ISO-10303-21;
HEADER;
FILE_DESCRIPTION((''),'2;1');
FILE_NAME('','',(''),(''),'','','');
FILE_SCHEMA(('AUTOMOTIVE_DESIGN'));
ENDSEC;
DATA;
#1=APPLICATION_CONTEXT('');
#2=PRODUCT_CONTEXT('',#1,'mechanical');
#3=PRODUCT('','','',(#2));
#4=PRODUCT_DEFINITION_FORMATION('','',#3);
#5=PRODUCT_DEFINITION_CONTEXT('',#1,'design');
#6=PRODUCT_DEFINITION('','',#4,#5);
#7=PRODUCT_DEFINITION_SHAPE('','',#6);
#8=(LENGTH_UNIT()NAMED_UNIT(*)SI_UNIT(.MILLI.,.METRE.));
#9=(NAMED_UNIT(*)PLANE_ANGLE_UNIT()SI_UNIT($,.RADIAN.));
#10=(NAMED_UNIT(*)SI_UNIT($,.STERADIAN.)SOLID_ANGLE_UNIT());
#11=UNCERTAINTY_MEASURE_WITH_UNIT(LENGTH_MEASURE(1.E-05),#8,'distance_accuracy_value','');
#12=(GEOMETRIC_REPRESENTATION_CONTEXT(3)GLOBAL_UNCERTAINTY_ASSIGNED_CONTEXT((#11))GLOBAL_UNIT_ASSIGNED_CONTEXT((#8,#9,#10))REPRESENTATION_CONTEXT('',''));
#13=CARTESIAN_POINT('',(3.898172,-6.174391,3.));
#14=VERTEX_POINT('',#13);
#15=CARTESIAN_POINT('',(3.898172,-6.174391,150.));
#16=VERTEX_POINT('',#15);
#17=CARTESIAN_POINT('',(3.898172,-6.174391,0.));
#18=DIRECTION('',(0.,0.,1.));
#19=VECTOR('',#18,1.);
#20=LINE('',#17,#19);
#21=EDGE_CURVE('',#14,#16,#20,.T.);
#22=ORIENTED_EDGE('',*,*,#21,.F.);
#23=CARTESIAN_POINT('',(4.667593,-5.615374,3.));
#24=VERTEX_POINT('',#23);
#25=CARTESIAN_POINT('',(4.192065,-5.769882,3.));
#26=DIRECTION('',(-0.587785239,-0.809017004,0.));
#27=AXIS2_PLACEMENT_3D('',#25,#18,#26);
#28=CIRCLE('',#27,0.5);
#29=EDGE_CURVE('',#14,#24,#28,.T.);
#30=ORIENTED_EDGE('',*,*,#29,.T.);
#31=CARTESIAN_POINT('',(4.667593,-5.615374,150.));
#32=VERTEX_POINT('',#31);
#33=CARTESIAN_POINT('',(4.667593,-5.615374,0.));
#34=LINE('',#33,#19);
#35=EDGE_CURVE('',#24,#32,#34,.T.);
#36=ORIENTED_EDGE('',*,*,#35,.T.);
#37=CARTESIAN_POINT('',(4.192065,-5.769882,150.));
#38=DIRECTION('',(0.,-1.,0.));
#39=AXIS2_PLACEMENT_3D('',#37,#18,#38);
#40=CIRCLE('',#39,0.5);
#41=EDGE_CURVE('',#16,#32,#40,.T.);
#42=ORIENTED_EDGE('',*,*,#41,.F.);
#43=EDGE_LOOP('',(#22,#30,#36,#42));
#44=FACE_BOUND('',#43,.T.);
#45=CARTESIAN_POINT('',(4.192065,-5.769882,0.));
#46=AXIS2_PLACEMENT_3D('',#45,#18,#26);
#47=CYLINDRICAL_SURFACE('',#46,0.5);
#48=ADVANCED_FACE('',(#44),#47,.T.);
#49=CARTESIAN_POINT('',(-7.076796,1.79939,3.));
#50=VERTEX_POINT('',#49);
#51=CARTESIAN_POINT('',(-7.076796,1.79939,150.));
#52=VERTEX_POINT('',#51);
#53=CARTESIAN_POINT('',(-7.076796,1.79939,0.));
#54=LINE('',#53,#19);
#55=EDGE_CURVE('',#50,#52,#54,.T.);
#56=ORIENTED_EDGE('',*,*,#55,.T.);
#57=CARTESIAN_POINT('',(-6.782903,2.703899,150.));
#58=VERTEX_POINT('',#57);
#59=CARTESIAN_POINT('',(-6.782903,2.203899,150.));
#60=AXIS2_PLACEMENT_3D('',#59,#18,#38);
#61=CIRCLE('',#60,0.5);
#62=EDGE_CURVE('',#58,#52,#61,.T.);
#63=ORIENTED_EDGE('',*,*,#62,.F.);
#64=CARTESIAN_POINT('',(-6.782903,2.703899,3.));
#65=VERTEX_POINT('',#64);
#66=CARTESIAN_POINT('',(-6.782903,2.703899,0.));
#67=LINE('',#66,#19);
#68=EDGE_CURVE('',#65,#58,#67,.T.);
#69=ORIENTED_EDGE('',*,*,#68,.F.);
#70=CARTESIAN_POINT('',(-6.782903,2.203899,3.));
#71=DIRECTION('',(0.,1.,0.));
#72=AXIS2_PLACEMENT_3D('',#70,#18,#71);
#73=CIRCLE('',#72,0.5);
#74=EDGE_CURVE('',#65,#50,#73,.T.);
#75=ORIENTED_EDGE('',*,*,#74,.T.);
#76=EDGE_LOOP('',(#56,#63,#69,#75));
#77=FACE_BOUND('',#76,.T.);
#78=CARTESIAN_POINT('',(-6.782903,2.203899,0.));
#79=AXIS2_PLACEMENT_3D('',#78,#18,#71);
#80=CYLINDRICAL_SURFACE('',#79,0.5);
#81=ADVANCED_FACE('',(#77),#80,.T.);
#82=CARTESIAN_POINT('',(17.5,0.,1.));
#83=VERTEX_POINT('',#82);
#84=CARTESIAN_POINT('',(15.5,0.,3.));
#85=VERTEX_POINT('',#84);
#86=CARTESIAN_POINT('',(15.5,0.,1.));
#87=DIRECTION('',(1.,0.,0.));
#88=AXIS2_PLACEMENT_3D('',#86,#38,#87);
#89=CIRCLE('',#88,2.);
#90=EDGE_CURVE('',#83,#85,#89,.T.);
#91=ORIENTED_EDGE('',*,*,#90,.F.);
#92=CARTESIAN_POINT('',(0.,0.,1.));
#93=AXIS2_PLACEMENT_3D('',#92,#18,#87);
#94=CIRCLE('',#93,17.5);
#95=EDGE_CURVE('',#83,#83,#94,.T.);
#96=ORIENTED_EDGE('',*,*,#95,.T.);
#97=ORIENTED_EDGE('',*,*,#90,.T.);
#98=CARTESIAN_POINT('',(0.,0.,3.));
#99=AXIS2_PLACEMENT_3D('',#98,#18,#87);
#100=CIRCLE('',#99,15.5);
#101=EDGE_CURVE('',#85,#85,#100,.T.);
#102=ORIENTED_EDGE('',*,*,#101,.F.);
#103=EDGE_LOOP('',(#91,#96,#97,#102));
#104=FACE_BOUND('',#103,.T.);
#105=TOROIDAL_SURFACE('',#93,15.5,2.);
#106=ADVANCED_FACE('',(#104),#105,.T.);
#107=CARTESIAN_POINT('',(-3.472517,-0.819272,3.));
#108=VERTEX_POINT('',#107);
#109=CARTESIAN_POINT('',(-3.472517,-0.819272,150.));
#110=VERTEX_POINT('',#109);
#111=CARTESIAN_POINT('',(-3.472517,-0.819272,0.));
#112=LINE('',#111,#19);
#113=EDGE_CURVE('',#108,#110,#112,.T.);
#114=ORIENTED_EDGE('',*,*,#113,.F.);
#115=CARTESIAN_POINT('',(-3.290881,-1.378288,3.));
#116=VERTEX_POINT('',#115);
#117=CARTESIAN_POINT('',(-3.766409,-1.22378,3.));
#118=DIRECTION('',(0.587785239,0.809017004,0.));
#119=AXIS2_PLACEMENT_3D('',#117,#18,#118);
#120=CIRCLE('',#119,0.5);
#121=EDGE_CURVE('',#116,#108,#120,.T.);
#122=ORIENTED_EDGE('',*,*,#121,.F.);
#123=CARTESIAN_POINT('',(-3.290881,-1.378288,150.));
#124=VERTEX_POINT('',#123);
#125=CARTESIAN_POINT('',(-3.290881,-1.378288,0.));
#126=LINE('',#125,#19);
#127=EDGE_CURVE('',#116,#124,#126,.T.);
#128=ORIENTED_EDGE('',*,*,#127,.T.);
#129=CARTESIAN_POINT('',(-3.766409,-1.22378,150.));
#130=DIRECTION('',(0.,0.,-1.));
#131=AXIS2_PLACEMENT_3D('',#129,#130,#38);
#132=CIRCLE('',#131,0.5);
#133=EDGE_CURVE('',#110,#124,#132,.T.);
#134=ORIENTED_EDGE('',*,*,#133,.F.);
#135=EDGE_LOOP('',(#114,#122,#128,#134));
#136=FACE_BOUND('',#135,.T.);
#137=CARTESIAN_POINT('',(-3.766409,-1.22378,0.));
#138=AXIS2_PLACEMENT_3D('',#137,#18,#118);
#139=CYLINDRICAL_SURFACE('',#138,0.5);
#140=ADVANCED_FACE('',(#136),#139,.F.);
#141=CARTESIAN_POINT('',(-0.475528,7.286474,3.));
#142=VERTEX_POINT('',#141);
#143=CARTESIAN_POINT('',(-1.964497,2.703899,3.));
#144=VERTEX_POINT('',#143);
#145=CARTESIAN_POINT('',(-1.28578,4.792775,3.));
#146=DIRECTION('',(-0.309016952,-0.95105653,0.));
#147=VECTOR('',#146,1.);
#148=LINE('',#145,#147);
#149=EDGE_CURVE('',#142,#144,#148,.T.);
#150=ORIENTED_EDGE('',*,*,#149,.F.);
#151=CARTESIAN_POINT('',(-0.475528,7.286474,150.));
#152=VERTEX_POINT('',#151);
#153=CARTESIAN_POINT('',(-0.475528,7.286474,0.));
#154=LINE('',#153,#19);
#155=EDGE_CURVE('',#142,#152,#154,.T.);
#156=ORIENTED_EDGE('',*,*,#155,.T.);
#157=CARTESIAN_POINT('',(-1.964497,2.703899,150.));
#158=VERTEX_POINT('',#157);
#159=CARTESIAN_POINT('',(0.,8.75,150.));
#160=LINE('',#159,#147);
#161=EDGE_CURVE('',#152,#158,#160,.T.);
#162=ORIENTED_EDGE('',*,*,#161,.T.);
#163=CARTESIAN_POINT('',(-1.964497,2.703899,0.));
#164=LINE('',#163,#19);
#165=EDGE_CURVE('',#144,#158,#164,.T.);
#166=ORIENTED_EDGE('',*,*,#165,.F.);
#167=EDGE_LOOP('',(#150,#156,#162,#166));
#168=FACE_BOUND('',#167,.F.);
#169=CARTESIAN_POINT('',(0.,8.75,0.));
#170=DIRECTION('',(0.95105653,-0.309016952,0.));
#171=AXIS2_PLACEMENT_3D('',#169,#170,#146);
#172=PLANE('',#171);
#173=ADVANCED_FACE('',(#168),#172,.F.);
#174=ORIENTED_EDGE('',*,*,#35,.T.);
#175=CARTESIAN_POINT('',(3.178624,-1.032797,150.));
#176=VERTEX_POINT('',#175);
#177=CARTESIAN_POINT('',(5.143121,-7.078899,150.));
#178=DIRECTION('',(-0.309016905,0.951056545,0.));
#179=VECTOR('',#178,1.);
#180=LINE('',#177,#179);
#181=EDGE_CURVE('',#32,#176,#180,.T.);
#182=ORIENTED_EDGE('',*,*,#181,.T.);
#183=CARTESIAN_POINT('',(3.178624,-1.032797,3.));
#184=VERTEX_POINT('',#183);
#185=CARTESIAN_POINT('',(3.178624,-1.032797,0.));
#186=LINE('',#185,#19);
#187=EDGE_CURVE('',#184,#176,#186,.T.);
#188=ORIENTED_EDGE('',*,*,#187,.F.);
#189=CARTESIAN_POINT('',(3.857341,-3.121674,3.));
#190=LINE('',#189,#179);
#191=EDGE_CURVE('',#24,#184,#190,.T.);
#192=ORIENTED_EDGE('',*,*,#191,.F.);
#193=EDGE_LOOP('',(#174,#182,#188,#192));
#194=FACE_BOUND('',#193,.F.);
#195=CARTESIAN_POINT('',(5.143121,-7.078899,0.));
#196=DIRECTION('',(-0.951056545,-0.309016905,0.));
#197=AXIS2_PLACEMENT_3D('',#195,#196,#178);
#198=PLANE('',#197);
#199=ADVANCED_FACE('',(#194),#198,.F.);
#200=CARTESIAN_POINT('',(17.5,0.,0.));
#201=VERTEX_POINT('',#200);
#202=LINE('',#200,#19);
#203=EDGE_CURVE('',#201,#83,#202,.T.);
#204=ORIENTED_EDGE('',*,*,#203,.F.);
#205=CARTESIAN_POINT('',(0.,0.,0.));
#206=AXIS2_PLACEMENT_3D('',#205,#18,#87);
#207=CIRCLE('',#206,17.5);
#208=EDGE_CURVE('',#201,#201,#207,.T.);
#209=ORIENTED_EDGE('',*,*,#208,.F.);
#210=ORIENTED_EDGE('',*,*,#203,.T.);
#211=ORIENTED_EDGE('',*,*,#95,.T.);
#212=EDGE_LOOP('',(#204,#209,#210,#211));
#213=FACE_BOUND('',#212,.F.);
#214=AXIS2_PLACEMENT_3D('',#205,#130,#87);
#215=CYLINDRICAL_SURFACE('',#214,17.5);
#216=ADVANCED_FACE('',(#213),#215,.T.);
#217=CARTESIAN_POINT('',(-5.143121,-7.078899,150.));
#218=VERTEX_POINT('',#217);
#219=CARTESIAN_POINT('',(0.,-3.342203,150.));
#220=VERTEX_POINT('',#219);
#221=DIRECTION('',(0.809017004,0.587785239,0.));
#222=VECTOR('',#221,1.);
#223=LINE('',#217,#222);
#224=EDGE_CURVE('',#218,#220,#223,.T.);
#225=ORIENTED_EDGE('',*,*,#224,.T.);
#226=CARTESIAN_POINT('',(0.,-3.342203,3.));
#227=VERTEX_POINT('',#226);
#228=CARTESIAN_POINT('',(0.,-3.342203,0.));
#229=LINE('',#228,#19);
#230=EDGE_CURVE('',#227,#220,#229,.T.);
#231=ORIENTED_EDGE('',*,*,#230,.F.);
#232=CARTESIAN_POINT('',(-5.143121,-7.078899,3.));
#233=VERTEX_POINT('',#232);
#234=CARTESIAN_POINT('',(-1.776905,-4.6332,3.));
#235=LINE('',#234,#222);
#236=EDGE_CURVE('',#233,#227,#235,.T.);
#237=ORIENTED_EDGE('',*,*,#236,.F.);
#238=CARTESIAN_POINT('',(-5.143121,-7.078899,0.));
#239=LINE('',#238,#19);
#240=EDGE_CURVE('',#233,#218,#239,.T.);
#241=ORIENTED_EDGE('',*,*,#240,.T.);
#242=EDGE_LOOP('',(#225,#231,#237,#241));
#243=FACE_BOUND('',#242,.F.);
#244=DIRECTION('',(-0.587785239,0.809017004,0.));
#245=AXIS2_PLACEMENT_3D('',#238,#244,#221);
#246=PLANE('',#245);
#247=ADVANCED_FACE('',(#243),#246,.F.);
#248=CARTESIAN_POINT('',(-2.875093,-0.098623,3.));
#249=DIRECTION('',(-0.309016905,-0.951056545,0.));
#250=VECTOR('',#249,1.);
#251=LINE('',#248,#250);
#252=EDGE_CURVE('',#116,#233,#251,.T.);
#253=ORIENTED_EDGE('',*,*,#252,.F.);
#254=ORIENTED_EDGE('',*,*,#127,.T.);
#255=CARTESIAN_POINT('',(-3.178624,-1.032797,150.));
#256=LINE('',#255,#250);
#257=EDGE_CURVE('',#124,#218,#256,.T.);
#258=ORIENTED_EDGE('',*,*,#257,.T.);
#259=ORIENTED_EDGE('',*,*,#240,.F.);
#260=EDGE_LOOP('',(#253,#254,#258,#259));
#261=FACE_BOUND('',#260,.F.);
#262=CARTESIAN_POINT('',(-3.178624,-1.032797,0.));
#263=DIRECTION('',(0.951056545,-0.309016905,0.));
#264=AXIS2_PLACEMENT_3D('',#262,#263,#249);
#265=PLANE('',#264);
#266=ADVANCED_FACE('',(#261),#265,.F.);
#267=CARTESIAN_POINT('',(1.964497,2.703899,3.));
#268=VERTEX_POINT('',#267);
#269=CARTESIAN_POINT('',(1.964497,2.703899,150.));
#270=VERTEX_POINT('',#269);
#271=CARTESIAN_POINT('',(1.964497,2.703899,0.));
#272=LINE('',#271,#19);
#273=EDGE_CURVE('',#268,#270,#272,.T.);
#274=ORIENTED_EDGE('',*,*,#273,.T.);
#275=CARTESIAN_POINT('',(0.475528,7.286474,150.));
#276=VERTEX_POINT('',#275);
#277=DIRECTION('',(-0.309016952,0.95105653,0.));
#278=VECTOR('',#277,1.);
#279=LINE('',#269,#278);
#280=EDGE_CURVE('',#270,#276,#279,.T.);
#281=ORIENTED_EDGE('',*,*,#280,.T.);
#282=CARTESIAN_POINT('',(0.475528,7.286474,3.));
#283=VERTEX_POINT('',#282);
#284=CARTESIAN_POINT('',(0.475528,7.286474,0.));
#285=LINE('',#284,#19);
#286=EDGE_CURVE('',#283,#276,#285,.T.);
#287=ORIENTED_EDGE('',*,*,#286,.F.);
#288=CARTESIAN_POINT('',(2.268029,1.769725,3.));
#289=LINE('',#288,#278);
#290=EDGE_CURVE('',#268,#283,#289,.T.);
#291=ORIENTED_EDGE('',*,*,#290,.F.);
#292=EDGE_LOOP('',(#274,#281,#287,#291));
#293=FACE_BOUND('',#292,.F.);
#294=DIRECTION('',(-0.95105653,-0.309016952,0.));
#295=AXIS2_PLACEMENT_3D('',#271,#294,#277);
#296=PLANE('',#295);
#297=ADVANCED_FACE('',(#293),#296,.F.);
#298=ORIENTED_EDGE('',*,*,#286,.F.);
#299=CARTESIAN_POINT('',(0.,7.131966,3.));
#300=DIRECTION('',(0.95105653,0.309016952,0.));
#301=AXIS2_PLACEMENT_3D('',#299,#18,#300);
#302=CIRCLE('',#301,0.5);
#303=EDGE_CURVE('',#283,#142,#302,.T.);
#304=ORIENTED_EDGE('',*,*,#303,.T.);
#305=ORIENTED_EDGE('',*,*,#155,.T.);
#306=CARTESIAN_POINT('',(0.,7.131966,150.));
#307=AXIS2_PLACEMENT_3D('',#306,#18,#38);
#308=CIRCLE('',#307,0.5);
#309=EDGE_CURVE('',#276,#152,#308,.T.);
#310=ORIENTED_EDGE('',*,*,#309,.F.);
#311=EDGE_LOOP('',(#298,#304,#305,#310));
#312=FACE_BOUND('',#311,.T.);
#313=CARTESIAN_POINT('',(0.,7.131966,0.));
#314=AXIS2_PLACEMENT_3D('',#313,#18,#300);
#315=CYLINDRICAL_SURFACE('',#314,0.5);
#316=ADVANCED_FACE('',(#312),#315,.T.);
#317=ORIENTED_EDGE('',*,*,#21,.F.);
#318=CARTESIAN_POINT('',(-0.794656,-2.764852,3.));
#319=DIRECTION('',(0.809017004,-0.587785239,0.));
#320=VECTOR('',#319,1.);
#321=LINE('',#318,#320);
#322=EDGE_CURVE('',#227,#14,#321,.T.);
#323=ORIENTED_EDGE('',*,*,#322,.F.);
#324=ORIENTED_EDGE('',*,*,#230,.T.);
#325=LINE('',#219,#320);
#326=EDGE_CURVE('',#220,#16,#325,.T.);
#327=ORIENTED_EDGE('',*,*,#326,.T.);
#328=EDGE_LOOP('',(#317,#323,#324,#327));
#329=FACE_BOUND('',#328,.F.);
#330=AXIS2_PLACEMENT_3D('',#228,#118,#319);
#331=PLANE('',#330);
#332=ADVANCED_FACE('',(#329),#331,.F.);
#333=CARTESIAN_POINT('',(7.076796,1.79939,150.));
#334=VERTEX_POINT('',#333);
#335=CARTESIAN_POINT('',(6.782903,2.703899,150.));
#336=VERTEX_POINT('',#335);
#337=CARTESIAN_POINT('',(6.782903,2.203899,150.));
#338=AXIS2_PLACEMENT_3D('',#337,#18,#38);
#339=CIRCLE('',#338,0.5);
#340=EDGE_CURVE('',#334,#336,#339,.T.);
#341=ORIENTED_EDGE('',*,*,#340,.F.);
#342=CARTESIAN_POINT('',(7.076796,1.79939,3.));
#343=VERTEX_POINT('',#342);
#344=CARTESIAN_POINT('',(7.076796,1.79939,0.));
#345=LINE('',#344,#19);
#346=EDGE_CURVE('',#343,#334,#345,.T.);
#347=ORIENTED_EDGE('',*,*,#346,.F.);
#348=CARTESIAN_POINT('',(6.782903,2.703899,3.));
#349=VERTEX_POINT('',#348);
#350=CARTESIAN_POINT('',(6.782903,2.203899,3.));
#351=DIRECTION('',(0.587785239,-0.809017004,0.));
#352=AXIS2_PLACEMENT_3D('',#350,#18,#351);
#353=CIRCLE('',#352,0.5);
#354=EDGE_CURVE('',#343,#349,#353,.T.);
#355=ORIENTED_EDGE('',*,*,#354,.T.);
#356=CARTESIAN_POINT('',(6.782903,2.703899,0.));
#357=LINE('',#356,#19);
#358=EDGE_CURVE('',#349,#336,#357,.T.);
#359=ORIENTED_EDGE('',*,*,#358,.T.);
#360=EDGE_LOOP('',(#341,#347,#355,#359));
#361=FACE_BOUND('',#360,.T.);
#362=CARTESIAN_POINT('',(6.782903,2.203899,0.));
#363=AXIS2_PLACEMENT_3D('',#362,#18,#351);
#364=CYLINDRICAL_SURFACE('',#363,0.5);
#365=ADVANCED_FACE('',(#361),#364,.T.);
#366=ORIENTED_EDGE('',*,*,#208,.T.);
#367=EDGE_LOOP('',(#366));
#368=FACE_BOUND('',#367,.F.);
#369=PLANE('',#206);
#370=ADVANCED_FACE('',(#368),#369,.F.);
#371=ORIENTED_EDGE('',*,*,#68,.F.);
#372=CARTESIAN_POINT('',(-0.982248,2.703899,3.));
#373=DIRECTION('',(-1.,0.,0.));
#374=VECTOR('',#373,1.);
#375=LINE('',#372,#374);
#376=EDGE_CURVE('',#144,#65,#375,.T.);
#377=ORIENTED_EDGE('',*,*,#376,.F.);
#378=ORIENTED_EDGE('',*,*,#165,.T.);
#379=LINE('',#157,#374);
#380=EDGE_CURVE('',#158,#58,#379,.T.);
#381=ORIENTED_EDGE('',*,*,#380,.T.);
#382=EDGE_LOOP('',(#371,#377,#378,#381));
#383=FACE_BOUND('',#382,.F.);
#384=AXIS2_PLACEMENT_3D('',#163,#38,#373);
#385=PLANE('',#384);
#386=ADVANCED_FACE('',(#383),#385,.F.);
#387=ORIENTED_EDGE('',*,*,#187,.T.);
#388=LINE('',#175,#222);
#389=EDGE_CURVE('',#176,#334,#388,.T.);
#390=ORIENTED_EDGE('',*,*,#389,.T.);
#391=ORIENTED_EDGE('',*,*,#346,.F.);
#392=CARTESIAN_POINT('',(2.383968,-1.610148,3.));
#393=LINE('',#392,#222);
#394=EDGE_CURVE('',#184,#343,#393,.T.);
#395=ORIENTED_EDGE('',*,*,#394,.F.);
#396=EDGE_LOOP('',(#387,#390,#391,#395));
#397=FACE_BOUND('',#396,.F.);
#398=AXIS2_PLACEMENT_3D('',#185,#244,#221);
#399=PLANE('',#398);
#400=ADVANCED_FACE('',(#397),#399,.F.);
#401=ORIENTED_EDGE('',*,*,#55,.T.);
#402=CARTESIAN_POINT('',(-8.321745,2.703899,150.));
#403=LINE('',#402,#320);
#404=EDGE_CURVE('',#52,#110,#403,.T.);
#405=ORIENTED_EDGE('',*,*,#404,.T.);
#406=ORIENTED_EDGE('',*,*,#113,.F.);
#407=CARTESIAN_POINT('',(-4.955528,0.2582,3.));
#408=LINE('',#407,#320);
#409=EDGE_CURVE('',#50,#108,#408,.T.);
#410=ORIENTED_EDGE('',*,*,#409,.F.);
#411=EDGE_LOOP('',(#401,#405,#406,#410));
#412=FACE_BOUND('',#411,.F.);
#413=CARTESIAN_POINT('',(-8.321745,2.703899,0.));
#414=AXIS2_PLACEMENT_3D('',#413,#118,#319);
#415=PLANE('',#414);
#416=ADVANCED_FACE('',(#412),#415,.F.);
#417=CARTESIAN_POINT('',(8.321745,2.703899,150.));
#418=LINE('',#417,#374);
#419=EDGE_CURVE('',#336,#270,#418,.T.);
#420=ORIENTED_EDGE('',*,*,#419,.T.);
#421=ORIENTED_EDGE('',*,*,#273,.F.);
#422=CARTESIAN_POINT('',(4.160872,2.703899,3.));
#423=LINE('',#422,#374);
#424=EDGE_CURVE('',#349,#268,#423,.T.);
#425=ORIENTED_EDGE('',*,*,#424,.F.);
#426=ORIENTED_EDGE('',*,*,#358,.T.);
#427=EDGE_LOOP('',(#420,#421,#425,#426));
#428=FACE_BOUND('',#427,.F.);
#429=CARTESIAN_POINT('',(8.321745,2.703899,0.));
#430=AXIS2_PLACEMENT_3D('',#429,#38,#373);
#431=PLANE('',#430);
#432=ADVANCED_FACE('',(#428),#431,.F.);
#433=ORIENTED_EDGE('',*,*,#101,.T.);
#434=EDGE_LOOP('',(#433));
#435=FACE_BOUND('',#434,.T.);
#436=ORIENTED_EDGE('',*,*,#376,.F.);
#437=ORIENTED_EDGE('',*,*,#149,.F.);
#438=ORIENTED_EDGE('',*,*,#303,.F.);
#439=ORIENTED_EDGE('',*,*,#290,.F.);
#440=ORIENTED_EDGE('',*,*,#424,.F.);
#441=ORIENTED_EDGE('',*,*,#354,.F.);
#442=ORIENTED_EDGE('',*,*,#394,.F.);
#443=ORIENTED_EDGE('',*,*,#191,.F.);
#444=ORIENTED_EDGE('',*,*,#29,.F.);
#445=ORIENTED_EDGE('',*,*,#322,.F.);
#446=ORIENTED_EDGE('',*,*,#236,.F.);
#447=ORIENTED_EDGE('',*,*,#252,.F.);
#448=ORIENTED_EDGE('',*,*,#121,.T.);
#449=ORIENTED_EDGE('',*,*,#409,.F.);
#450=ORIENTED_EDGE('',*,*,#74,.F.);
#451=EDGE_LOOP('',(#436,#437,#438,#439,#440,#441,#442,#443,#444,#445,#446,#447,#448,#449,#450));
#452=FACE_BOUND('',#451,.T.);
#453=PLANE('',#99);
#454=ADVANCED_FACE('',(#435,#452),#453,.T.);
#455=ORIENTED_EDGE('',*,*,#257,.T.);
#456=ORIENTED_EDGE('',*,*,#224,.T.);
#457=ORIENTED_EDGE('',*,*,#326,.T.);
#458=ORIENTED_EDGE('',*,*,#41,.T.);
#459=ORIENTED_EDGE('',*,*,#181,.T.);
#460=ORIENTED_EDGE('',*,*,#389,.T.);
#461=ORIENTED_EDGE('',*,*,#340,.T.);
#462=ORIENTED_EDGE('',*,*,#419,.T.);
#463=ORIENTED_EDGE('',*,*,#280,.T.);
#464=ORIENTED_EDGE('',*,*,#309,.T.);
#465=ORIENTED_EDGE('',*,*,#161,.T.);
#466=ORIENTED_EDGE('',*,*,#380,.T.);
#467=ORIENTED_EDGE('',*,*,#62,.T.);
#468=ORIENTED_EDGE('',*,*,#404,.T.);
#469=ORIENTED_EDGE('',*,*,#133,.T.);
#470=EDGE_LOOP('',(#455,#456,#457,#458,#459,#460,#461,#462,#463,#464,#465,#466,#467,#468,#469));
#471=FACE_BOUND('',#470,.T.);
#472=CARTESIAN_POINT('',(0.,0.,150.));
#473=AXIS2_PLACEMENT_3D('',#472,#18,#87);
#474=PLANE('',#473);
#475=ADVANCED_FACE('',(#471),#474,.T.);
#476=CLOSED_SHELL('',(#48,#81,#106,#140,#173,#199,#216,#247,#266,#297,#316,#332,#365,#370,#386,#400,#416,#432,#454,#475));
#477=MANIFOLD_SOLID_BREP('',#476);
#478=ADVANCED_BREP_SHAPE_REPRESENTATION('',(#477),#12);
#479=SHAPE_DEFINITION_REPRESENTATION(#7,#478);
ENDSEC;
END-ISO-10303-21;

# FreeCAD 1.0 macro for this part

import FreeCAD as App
import Part
import Sketcher
from FreeCAD import Vector
Q = App.Units.Quantity


def edges_at(feature, points):
    """Names of the edges that pass closest to the given points."""
    edges = feature.Shape.Edges
    near = lambda p: min(range(len(edges)), key=lambda i: edges[i].distToShape(Part.Vertex(*p))[0])
    return sorted({f"Edge{near(p) + 1}" for p in points})

doc = App.newDocument("Part")
body = doc.addObject("PartDesign::Body", "Body")

sketch1 = body.newObject("Sketcher::SketchObject", "Sketch")
sketch1.AttachmentSupport = (doc.getObject("XY_Plane"), [""])
sketch1.MapMode = "FlatFace"
sketch1.addGeometry([
    Part.LineSegment(Vector(3.178624, -1.032797, 0), Vector(8.321745, 2.703899, 0)),
    Part.LineSegment(Vector(8.321745, 2.703899, 0), Vector(1.964497, 2.703899, 0)),
    Part.LineSegment(Vector(1.964497, 2.703899, 0), Vector(0, 8.75, 0)),
    Part.LineSegment(Vector(0, 8.75, 0), Vector(-1.964497, 2.703899, 0)),
    Part.LineSegment(Vector(-1.964497, 2.703899, 0), Vector(-8.321745, 2.703899, 0)),
    Part.LineSegment(Vector(-8.321745, 2.703899, 0), Vector(-3.178624, -1.032797, 0)),
    Part.LineSegment(Vector(-3.178624, -1.032797, 0), Vector(-5.143121, -7.078899, 0)),
    Part.LineSegment(Vector(-5.143121, -7.078899, 0), Vector(0, -3.342203, 0)),
    Part.LineSegment(Vector(0, -3.342203, 0), Vector(5.143121, -7.078899, 0)),
    Part.LineSegment(Vector(5.143121, -7.078899, 0), Vector(3.178624, -1.032797, 0)),
], False)
sketch1.addConstraint([
    Sketcher.Constraint("Coincident", 0, 2, 1, 1),
    Sketcher.Constraint("Coincident", 1, 2, 2, 1),
    Sketcher.Constraint("Coincident", 2, 2, 3, 1),
    Sketcher.Constraint("Coincident", 3, 2, 4, 1),
    Sketcher.Constraint("Coincident", 4, 2, 5, 1),
    Sketcher.Constraint("Coincident", 5, 2, 6, 1),
    Sketcher.Constraint("Coincident", 6, 2, 7, 1),
    Sketcher.Constraint("Coincident", 7, 2, 8, 1),
    Sketcher.Constraint("Coincident", 8, 2, 9, 1),
    Sketcher.Constraint("Coincident", 9, 2, 0, 1),
    Sketcher.Constraint("Horizontal", 1),
    Sketcher.Constraint("Horizontal", 4),
    Sketcher.Constraint("Symmetric", 1, 2, 3, 2, -2),
    Sketcher.Constraint("Symmetric", 6, 2, 8, 2, -2),
    Sketcher.Constraint("Symmetric", 5, 2, 9, 2, -2),
    Sketcher.Constraint("PointOnObject", 2, 2, -2),
    Sketcher.Constraint("PointOnObject", 7, 2, -2),
    Sketcher.Constraint("Parallel", 3, 6),
    Sketcher.Constraint("Parallel", 0, 7),
    Sketcher.Constraint("Parallel", 5, 8),
    Sketcher.Constraint("Equal", 0, 2),
    Sketcher.Constraint("Equal", 5, 6),
    Sketcher.Constraint("Equal", 6, 7),
    Sketcher.Constraint("Angle", 0, Q("35.999999 deg")),
    Sketcher.Constraint("Angle", 2, Q("107.999997 deg")),
    Sketcher.Constraint("DistanceY", -1, 1, 2, 2, Q("8.75 mm")),
    Sketcher.Constraint("DistanceX", 1, 2, 1, 1, Q("6.357248 mm")),
])
pad1 = body.newObject("PartDesign::Pad", "Pad")
pad1.Profile = sketch1
pad1.Length = 150
doc.recompute()

fillet = body.newObject("PartDesign::Fillet", "Fillet")
fillet.Base = (pad1, edges_at(pad1, [
    (-8.322, 2.704, 75),
    (-3.179, -1.033, 75),
    (5.143, -7.079, 75),
    (0, 8.75, 75),
    (8.322, 2.704, 75),
]))
fillet.Radius = 0.5

sketch2 = body.newObject("Sketcher::SketchObject", "Sketch001")
sketch2.AttachmentSupport = (doc.getObject("XY_Plane"), [""])
sketch2.MapMode = "FlatFace"
sketch2.addGeometry(Part.Circle(Vector(0, 0, 0), Vector(0, 0, 1), 17.5), False)
sketch2.addConstraint([
    Sketcher.Constraint("Coincident", 0, 3, -1, 1),
    Sketcher.Constraint("Diameter", 0, Q("35 mm")),
])
pad2 = body.newObject("PartDesign::Pad", "Pad001")
pad2.Profile = sketch2
pad2.Length = 3
doc.recompute()

fillet2 = body.newObject("PartDesign::Fillet", "Fillet001")
fillet2.Base = (pad2, edges_at(pad2, [(-17.5, 0, 3)]))
fillet2.Radius = 2

doc.recompute()
